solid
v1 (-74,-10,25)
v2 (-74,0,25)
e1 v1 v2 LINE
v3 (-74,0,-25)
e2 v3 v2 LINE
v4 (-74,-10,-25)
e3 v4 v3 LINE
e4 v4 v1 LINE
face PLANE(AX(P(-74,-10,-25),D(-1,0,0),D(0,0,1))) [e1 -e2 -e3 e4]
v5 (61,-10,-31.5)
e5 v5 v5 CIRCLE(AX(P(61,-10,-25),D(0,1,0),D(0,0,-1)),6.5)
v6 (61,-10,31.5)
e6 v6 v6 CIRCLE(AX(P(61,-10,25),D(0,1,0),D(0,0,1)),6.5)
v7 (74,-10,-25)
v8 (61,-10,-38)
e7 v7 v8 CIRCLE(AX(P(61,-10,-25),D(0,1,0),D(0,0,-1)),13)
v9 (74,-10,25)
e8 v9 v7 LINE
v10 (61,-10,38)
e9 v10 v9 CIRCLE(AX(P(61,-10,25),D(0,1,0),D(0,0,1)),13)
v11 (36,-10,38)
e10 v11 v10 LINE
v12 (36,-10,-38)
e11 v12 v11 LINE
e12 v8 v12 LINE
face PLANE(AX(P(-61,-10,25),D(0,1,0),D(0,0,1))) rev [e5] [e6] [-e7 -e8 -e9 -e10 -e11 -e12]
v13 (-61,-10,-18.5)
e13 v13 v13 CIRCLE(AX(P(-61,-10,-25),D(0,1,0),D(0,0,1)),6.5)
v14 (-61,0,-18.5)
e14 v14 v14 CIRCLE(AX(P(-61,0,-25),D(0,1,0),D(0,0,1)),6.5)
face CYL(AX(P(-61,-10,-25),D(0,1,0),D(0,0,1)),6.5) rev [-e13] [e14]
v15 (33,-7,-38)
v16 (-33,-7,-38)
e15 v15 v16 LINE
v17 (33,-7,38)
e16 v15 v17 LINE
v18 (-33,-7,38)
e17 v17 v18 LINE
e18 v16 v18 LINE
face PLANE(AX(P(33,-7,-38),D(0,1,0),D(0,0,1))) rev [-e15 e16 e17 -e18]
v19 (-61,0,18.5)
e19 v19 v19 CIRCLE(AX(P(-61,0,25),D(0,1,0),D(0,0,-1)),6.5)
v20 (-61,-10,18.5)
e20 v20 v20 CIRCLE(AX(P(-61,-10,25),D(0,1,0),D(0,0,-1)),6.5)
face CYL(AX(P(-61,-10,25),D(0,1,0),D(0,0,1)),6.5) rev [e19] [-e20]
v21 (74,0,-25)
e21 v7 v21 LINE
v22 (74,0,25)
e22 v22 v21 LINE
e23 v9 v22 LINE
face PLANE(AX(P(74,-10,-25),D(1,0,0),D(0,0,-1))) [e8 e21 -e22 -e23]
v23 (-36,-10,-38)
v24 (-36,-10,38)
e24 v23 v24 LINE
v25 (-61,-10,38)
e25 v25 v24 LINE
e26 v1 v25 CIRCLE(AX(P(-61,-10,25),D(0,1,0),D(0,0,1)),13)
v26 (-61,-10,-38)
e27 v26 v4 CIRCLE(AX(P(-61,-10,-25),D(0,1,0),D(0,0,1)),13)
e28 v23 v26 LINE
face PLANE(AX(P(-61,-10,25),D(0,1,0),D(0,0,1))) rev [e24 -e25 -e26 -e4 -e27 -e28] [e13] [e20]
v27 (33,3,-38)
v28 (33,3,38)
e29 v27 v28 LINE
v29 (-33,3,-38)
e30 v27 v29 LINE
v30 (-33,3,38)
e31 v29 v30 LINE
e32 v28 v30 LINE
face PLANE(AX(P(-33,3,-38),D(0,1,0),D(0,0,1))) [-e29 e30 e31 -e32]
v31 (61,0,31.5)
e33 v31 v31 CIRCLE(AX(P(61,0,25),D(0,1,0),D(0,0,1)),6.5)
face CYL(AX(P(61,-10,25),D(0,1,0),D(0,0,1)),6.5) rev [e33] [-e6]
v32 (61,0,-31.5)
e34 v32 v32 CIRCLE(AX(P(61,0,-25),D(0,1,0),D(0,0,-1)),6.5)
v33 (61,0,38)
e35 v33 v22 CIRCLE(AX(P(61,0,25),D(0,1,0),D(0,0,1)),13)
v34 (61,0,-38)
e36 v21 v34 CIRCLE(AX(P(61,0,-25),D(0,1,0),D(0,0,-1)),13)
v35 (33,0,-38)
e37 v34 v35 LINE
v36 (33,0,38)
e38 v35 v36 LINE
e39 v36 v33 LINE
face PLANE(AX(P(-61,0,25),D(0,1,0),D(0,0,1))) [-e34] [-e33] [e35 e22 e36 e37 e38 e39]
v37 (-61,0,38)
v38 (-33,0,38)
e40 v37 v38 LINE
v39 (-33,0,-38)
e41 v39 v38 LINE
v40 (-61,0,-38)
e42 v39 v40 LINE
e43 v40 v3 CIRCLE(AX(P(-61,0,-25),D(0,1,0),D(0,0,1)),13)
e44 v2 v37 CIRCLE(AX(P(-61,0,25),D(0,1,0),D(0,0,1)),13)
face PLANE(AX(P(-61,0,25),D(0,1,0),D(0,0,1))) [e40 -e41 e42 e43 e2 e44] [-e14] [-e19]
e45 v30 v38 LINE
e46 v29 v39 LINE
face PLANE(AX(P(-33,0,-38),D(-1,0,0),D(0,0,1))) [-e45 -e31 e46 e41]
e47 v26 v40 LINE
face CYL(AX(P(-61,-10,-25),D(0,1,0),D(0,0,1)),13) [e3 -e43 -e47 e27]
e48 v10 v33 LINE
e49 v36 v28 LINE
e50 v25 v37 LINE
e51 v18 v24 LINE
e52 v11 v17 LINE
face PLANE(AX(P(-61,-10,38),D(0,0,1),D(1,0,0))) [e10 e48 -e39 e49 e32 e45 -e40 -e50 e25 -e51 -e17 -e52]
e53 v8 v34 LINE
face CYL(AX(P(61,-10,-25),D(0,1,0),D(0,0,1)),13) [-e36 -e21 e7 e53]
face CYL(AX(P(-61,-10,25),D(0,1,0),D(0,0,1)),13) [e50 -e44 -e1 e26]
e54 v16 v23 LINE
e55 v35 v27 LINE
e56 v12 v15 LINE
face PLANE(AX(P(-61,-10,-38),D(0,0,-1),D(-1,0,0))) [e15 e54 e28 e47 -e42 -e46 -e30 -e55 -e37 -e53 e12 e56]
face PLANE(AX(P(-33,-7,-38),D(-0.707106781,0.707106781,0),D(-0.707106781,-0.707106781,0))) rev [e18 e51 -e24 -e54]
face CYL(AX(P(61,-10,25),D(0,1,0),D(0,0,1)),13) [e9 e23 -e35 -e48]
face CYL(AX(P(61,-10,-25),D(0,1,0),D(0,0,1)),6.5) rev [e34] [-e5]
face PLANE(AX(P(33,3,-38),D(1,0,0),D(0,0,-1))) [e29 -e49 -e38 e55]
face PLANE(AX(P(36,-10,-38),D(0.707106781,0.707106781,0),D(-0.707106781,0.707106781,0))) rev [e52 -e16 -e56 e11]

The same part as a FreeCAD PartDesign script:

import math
import FreeCAD as App
import Part
import Sketcher

V = App.Vector

doc = App.newDocument("Part")
params = doc.addObject("Spreadsheet::Sheet", "Params")
for row, (alias, value) in enumerate([
    ("sketch1_diameter", "13 mm"),
    ("sketch1_radius", "13 mm"),
    ("sketch1_width", "122 mm"),
    ("sketch1_height", "50 mm"),
    ("pad1_length", "10 mm"),
    ("sketch2_width", "72 mm"),
    ("sketch2_width2", "66 mm"),
    ("sketch3_width", "66 mm"),
    ("sketch3_height", "3 mm"),
    ("pad2_length", "76 mm"),
], start=1):
    params.set(f"A{row}", alias)
    params.set(f"B{row}", "=" + value)
    params.setAlias(f"B{row}", alias)

body = doc.addObject("PartDesign::Body", "Body")

# Sketch on XZ plane
sketch1 = body.newObject("Sketcher::SketchObject", "Sketch")
sketch1.AttachmentSupport = (doc.getObject("XZ_Plane"), [""])
sketch1.MapMode = "FlatFace"
sketch1.addGeometry([
    Part.LineSegment(V(61, -38, 0), V(-61, -38, 0)),  # 0
    Part.ArcOfCircle(Part.Circle(V(-61, -25, 0), V(0, 0, 1), 13), math.radians(-180), math.radians(-90)),  # 1
    Part.LineSegment(V(-74, -25, 0), V(-74, 25, 0)),  # 2
    Part.ArcOfCircle(Part.Circle(V(-61, 25, 0), V(0, 0, 1), 13), math.radians(90), math.radians(180)),  # 3
    Part.LineSegment(V(-61, 38, 0), V(61, 38, 0)),  # 4
    Part.ArcOfCircle(Part.Circle(V(61, 25, 0), V(0, 0, 1), 13), math.radians(0), math.radians(90)),  # 5
    Part.LineSegment(V(74, 25, 0), V(74, -25, 0)),  # 6
    Part.ArcOfCircle(Part.Circle(V(61, -25, 0), V(0, 0, 1), 13), math.radians(-90), math.radians(0)),  # 7
    Part.Circle(V(61, 25, 0), V(0, 0, 1), 6),  # 8
    Part.Circle(V(-61, 25, 0), V(0, 0, 1), 6),  # 9
    Part.Circle(V(61, -25, 0), V(0, 0, 1), 6),  # 10
    Part.Circle(V(-61, -25, 0), V(0, 0, 1), 6),  # 11
], False)
sketch1.addConstraint([
    Sketcher.Constraint("Tangent", 0, 2, 1, 2),
    Sketcher.Constraint("Tangent", 1, 1, 2, 1),
    Sketcher.Constraint("Tangent", 2, 2, 3, 2),
    Sketcher.Constraint("Tangent", 3, 1, 4, 1),
    Sketcher.Constraint("Tangent", 4, 2, 5, 2),
    Sketcher.Constraint("Tangent", 5, 1, 6, 1),
    Sketcher.Constraint("Tangent", 6, 2, 7, 2),
    Sketcher.Constraint("Tangent", 7, 1, 0, 1),
    Sketcher.Constraint("Horizontal", 0),
    Sketcher.Constraint("Vertical", 2),
    Sketcher.Constraint("Horizontal", 4),
    Sketcher.Constraint("Vertical", 6),
    Sketcher.Constraint("Coincident", 8, 3, 5, 3),
    Sketcher.Constraint("Coincident", 9, 3, 3, 3),
    Sketcher.Constraint("Coincident", 10, 3, 7, 3),
    Sketcher.Constraint("Coincident", 11, 3, 1, 3),
    Sketcher.Constraint("Equal", 1, 3),
    Sketcher.Constraint("Equal", 3, 5),
    Sketcher.Constraint("Equal", 5, 7),
    Sketcher.Constraint("Equal", 8, 9),
    Sketcher.Constraint("Equal", 9, 10),
    Sketcher.Constraint("Equal", 10, 11),
    Sketcher.Constraint("Symmetric", 1, 3, 5, 3, -1, 1),
    Sketcher.Constraint("Diameter", 8, 13.0),
    Sketcher.Constraint("Radius", 1, 13.0),
    Sketcher.Constraint("DistanceX", 0, 2, 0, 1, 122.0),
    Sketcher.Constraint("DistanceY", 2, 1, 2, 2, 50.0),
])
sketch1.setExpression("Constraints[23]", "Params.sketch1_diameter")
sketch1.setExpression("Constraints[24]", "Params.sketch1_radius")
sketch1.setExpression("Constraints[25]", "Params.sketch1_width")
sketch1.setExpression("Constraints[26]", "Params.sketch1_height")
pad1 = body.newObject("PartDesign::Pad", "Pad")
pad1.Profile = sketch1
pad1.setExpression("Length", "Params.pad1_length")

# Sketch on XY plane
sketch2 = body.newObject("Sketcher::SketchObject", "Sketch001")
sketch2.AttachmentSupport = (doc.getObject("XY_Plane"), [""])
sketch2.MapMode = "FlatFace"
sketch2.AttachmentOffset = App.Placement(V(0, 0, 38), App.Rotation())
sketch2.addGeometry([
    Part.LineSegment(V(-36, -10, 0), V(36, -10, 0)),
    Part.LineSegment(V(36, -10, 0), V(33, -7, 0)),
    Part.LineSegment(V(33, -7, 0), V(-33, -7, 0)),
    Part.LineSegment(V(-33, -7, 0), V(-36, -10, 0)),
], False)
sketch2.addConstraint([
    Sketcher.Constraint("Coincident", 0, 2, 1, 1),
    Sketcher.Constraint("Coincident", 1, 2, 2, 1),
    Sketcher.Constraint("Coincident", 2, 2, 3, 1),
    Sketcher.Constraint("Coincident", 3, 2, 0, 1),
    Sketcher.Constraint("Horizontal", 0),
    Sketcher.Constraint("Horizontal", 2),
    Sketcher.Constraint("Perpendicular", 1, 3),
    Sketcher.Constraint("Equal", 1, 3),
    Sketcher.Constraint("DistanceX", 0, 1, 0, 2, 72.0),
    Sketcher.Constraint("DistanceX", 2, 2, 2, 1, 66.0),
    Sketcher.Constraint("DistanceX", -1, 1, 0, 2, 36.0),
    Sketcher.Constraint("DistanceY", 0, 2, -1, 1, 10.0),
])
sketch2.setExpression("Constraints[8]", "Params.sketch2_width")
sketch2.setExpression("Constraints[9]", "Params.sketch2_width2")
pocket1 = body.newObject("PartDesign::Pocket", "Pocket")
pocket1.Profile = sketch2
pocket1.Type = "ThroughAll"

# Sketch on XY plane
sketch3 = body.newObject("Sketcher::SketchObject", "Sketch002")
sketch3.AttachmentSupport = (doc.getObject("XY_Plane"), [""])
sketch3.MapMode = "FlatFace"
sketch3.AttachmentOffset = App.Placement(V(0, 0, 38), App.Rotation())
sketch3.addGeometry([
    Part.LineSegment(V(-33, 3, 0), V(-33, 0, 0)),
    Part.LineSegment(V(-33, 0, 0), V(33, 0, 0)),
    Part.LineSegment(V(33, 0, 0), V(33, 3, 0)),
    Part.LineSegment(V(33, 3, 0), V(-33, 3, 0)),
], False)
sketch3.addConstraint([
    Sketcher.Constraint("Coincident", 0, 2, 1, 1),
    Sketcher.Constraint("Coincident", 1, 2, 2, 1),
    Sketcher.Constraint("Coincident", 2, 2, 3, 1),
    Sketcher.Constraint("Coincident", 3, 2, 0, 1),
    Sketcher.Constraint("Vertical", 0),
    Sketcher.Constraint("Horizontal", 1),
    Sketcher.Constraint("Vertical", 2),
    Sketcher.Constraint("Horizontal", 3),
    Sketcher.Constraint("Symmetric", 0, 2, 1, 2, -1, 1),
    Sketcher.Constraint("DistanceX", 1, 1, 1, 2, 66.0),
    Sketcher.Constraint("DistanceY", 0, 2, 0, 1, 3.0),
])
sketch3.setExpression("Constraints[9]", "Params.sketch3_width")
sketch3.setExpression("Constraints[10]", "Params.sketch3_height")
pad2 = body.newObject("PartDesign::Pad", "Pad001")
pad2.Profile = sketch3
pad2.setExpression("Length", "Params.pad2_length")
pad2.Reversed = True

doc.recompute()
